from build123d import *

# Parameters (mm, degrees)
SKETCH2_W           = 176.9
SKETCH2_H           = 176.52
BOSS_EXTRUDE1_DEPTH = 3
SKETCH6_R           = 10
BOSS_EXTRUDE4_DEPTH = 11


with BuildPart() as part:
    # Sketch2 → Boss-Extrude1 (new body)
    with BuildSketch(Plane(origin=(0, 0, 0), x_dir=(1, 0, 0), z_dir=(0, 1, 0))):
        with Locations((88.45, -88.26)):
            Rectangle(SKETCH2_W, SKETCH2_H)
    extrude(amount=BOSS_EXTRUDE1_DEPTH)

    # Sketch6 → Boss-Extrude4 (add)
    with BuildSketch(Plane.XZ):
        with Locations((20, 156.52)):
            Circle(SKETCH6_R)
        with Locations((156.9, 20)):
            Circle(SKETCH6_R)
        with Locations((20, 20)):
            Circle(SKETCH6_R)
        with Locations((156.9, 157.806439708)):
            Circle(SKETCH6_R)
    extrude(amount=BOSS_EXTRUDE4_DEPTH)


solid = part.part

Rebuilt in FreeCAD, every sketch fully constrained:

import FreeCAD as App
import Part
import Sketcher

V = App.Vector
Q = App.Units.Quantity

doc = App.newDocument("Part")
params = doc.addObject("Spreadsheet::Sheet", "Params")
for row, (alias, value) in enumerate([
    ("sketch1_width", "176.9 mm"),
    ("sketch1_height", "176.52 mm"),
    ("pad1_length", "3 mm"),
    ("sketch2_diameter", "20 mm"),
    ("pad2_length", "11 mm"),
], start=1):
    params.set(f"A{row}", alias)
    params.set(f"B{row}", "=" + value)
    params.setAlias(f"B{row}", alias)

body = doc.addObject("PartDesign::Body", "Body")

sketch1 = doc.addObject("Sketcher::SketchObject", "Sketch")
body.addObject(sketch1)
sketch1.AttachmentSupport = (doc.XZ_Plane, [""])
sketch1.MapMode = "FlatFace"
sketch1.addGeometry([
    Part.LineSegment(V(0, 0, 0), V(0, 177, 0)),
    Part.LineSegment(V(0, 177, 0), V(177, 177, 0)),
    Part.LineSegment(V(177, 177, 0), V(177, 0, 0)),
    Part.LineSegment(V(177, 0, 0), V(0, 0, 0)),
], False)
sketch1.addConstraint([
    Sketcher.Constraint("Coincident", 0, 2, 1, 1),
    Sketcher.Constraint("Coincident", 1, 2, 2, 1),
    Sketcher.Constraint("Coincident", 2, 2, 3, 1),
    Sketcher.Constraint("Coincident", 3, 2, 0, 1),
    Sketcher.Constraint("Vertical", 0),
    Sketcher.Constraint("Horizontal", 1),
    Sketcher.Constraint("Vertical", 2),
    Sketcher.Constraint("Horizontal", 3),
    Sketcher.Constraint("Coincident", 3, 2, -1, 1),
    Sketcher.Constraint("DistanceX", 1, 1, 1, 2, Q("176.9 mm")),
    Sketcher.Constraint("DistanceY", 0, 1, 0, 2, Q("176.52 mm")),
])
sketch1.setExpression("Constraints[9]", "Params.sketch1_width")
sketch1.setExpression("Constraints[10]", "Params.sketch1_height")
pad1 = doc.addObject("PartDesign::Pad", "Pad")
body.addObject(pad1)
pad1.Profile = sketch1
pad1.setExpression("Length", "Params.pad1_length")
pad1.Reversed = True

sketch2 = doc.addObject("Sketcher::SketchObject", "Sketch001")
body.addObject(sketch2)
sketch2.AttachmentSupport = (doc.XZ_Plane, [""])
sketch2.MapMode = "FlatFace"
sketch2.addGeometry([
    Part.Circle(V(20, 157, 0), V(0, 0, 1), 10),
    Part.Circle(V(157, 20, 0), V(0, 0, 1), 10),
    Part.Circle(V(20, 20, 0), V(0, 0, 1), 10),
    Part.Circle(V(157, 158, 0), V(0, 0, 1), 10),
], False)
sketch2.addConstraint([
    Sketcher.Constraint("Equal", 0, 1),
    Sketcher.Constraint("Equal", 1, 2),
    Sketcher.Constraint("Equal", 2, 3),
    Sketcher.Constraint("Horizontal", 1, 3, 2, 3),
    Sketcher.Constraint("Vertical", 0, 3, 2, 3),
    Sketcher.Constraint("Vertical", 1, 3, 3, 3),
    Sketcher.Constraint("Diameter", 0, Q("20 mm")),
    Sketcher.Constraint("DistanceX", -1, 1, 0, 3, Q("20 mm")),
    Sketcher.Constraint("DistanceY", -1, 1, 1, 3, Q("20 mm")),
    Sketcher.Constraint("DistanceX", -1, 1, 1, 3, Q("156.9 mm")),
    Sketcher.Constraint("DistanceY", -1, 1, 0, 3, Q("156.52 mm")),
    Sketcher.Constraint("DistanceY", -1, 1, 3, 3, Q("157.80644 mm")),
])
sketch2.setExpression("Constraints[6]", "Params.sketch2_diameter")
pad2 = doc.addObject("PartDesign::Pad", "Pad001")
body.addObject(pad2)
pad2.Profile = sketch2
pad2.setExpression("Length", "Params.pad2_length")

doc.recompute()
